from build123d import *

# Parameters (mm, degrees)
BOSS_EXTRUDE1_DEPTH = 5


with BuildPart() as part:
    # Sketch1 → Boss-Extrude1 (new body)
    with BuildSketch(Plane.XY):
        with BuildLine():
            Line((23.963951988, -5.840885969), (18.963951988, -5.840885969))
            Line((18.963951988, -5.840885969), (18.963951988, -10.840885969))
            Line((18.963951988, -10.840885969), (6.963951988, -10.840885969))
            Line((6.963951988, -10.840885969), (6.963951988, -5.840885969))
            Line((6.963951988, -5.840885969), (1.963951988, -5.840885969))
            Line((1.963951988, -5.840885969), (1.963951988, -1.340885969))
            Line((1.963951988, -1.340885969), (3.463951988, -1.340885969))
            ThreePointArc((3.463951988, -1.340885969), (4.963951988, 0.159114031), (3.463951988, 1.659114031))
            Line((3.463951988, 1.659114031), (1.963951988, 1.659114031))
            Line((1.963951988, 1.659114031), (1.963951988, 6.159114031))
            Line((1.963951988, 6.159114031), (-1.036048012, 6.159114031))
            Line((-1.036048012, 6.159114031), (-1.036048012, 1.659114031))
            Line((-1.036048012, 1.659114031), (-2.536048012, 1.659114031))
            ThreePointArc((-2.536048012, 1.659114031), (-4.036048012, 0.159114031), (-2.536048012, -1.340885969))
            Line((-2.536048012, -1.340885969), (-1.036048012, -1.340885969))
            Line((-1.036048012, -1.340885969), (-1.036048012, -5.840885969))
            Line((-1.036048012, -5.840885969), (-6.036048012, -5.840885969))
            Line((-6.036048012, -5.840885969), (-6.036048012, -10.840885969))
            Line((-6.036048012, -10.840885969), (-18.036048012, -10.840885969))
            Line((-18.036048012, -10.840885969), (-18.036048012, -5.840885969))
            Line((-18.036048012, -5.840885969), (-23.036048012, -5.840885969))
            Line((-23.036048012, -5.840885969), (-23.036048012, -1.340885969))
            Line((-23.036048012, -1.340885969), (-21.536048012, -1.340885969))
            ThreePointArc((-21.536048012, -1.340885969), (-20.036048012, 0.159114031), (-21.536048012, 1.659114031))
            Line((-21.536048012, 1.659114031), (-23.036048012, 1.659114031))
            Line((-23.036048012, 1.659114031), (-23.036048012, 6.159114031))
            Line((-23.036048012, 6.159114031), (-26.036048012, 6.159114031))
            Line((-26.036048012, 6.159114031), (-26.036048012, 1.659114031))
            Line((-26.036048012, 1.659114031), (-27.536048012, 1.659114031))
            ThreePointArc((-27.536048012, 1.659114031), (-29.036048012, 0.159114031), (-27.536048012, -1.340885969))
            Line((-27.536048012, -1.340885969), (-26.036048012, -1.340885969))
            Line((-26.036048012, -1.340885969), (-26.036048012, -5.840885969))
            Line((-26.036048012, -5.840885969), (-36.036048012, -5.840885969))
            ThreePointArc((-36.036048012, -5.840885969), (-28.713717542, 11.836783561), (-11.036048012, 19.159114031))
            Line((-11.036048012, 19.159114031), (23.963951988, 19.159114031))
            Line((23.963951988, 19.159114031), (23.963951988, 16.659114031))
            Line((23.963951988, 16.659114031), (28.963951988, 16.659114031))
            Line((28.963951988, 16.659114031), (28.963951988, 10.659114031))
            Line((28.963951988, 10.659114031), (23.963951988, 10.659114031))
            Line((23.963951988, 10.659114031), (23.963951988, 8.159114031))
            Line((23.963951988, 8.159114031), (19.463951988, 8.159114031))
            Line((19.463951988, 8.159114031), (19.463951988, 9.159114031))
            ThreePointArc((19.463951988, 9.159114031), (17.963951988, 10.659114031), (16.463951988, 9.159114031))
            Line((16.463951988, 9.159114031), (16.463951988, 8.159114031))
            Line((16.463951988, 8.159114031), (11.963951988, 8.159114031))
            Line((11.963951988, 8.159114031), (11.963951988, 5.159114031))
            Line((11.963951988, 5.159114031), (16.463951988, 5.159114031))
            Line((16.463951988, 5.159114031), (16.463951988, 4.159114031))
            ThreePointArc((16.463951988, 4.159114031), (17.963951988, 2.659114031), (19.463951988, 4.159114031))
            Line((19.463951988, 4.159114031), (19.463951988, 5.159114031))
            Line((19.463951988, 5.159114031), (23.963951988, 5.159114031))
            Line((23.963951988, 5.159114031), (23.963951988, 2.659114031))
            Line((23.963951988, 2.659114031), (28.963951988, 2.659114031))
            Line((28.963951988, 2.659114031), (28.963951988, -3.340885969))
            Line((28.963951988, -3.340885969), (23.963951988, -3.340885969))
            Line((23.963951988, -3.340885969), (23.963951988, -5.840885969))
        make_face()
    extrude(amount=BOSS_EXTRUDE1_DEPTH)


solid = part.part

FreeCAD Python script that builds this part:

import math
import FreeCAD as App
import Part
import Sketcher

doc = App.newDocument("Part")
body = doc.addObject("PartDesign::Body", "Body")

# Sketch on XY plane
sketch1 = body.newObject("Sketcher::SketchObject", "Sketch")
sketch1.AttachmentSupport = (doc.getObject("XY_Plane"), [""])
sketch1.MapMode = "FlatFace"
sketch1.addGeometry([
    Part.LineSegment(App.Vector(19, -5.8, 0), App.Vector(24, -5.8, 0)),  # 0
    Part.LineSegment(App.Vector(24, -5.8, 0), App.Vector(24, -3.3, 0)),  # 1
    Part.LineSegment(App.Vector(24, -3.3, 0), App.Vector(29, -3.3, 0)),  # 2
    Part.LineSegment(App.Vector(29, -3.3, 0), App.Vector(29, 2.7, 0)),  # 3
    Part.LineSegment(App.Vector(29, 2.7, 0), App.Vector(24, 2.7, 0)),  # 4
    Part.LineSegment(App.Vector(24, 2.7, 0), App.Vector(24, 5.2, 0)),  # 5
    Part.LineSegment(App.Vector(24, 5.2, 0), App.Vector(19.5, 5.2, 0)),  # 6
    Part.LineSegment(App.Vector(19.5, 5.2, 0), App.Vector(19.5, 4.2, 0)),  # 7
    Part.ArcOfCircle(Part.Circle(App.Vector(18, 4.2, 0), App.Vector(0, 0, 1), 1.5), math.radians(180), math.radians(360)),  # 8
    Part.LineSegment(App.Vector(16.5, 4.2, 0), App.Vector(16.5, 5.2, 0)),  # 9
    Part.LineSegment(App.Vector(16.5, 5.2, 0), App.Vector(12, 5.2, 0)),  # 10
    Part.LineSegment(App.Vector(12, 5.2, 0), App.Vector(12, 8.2, 0)),  # 11
    Part.LineSegment(App.Vector(12, 8.2, 0), App.Vector(16.5, 8.2, 0)),  # 12
    Part.LineSegment(App.Vector(16.5, 8.2, 0), App.Vector(16.5, 9.2, 0)),  # 13
    Part.ArcOfCircle(Part.Circle(App.Vector(18, 9.2, 0), App.Vector(0, 0, 1), 1.5), math.radians(0), math.radians(180)),  # 14
    Part.LineSegment(App.Vector(19.5, 9.2, 0), App.Vector(19.5, 8.2, 0)),  # 15
    Part.LineSegment(App.Vector(19.5, 8.2, 0), App.Vector(24, 8.2, 0)),  # 16
    Part.LineSegment(App.Vector(24, 8.2, 0), App.Vector(24, 10.7, 0)),  # 17
    Part.LineSegment(App.Vector(24, 10.7, 0), App.Vector(29, 10.7, 0)),  # 18
    Part.LineSegment(App.Vector(29, 10.7, 0), App.Vector(29, 16.7, 0)),  # 19
    Part.LineSegment(App.Vector(29, 16.7, 0), App.Vector(24, 16.7, 0)),  # 20
    Part.LineSegment(App.Vector(24, 16.7, 0), App.Vector(24, 19.2, 0)),  # 21
    Part.LineSegment(App.Vector(24, 19.2, 0), App.Vector(-11, 19.2, 0)),  # 22
    Part.ArcOfCircle(Part.Circle(App.Vector(-11, -5.8, 0), App.Vector(0, 0, 1), 25), math.radians(90), math.radians(180)),  # 23
    Part.LineSegment(App.Vector(-36, -5.8, 0), App.Vector(-26, -5.8, 0)),  # 24
    Part.LineSegment(App.Vector(-26, -5.8, 0), App.Vector(-26, -1.3, 0)),  # 25
    Part.LineSegment(App.Vector(-26, -1.3, 0), App.Vector(-27.5, -1.3, 0)),  # 26
    Part.ArcOfCircle(Part.Circle(App.Vector(-27.5, 0.2, 0), App.Vector(0, 0, 1), 1.5), math.radians(90), math.radians(270)),  # 27
    Part.LineSegment(App.Vector(-27.5, 1.7, 0), App.Vector(-26, 1.7, 0)),  # 28
    Part.LineSegment(App.Vector(-26, 1.7, 0), App.Vector(-26, 6.2, 0)),  # 29
    Part.LineSegment(App.Vector(-26, 6.2, 0), App.Vector(-23, 6.2, 0)),  # 30
    Part.LineSegment(App.Vector(-23, 6.2, 0), App.Vector(-23, 1.7, 0)),  # 31
    Part.LineSegment(App.Vector(-23, 1.7, 0), App.Vector(-21.5, 1.7, 0)),  # 32
    Part.ArcOfCircle(Part.Circle(App.Vector(-21.5, 0.2, 0), App.Vector(0, 0, 1), 1.5), math.radians(-90), math.radians(90)),  # 33
    Part.LineSegment(App.Vector(-21.5, -1.3, 0), App.Vector(-23, -1.3, 0)),  # 34
    Part.LineSegment(App.Vector(-23, -1.3, 0), App.Vector(-23, -5.8, 0)),  # 35
    Part.LineSegment(App.Vector(-23, -5.8, 0), App.Vector(-18, -5.8, 0)),  # 36
    Part.LineSegment(App.Vector(-18, -5.8, 0), App.Vector(-18, -10.8, 0)),  # 37
    Part.LineSegment(App.Vector(-18, -10.8, 0), App.Vector(-6, -10.8, 0)),  # 38
    Part.LineSegment(App.Vector(-6, -10.8, 0), App.Vector(-6, -5.8, 0)),  # 39
    Part.LineSegment(App.Vector(-6, -5.8, 0), App.Vector(-1, -5.8, 0)),  # 40
    Part.LineSegment(App.Vector(-1, -5.8, 0), App.Vector(-1, -1.3, 0)),  # 41
    Part.LineSegment(App.Vector(-1, -1.3, 0), App.Vector(-2.5, -1.3, 0)),  # 42
    Part.ArcOfCircle(Part.Circle(App.Vector(-2.5, 0.2, 0), App.Vector(0, 0, 1), 1.5), math.radians(90), math.radians(270)),  # 43
    Part.LineSegment(App.Vector(-2.5, 1.7, 0), App.Vector(-1, 1.7, 0)),  # 44
    Part.LineSegment(App.Vector(-1, 1.7, 0), App.Vector(-1, 6.2, 0)),  # 45
    Part.LineSegment(App.Vector(-1, 6.2, 0), App.Vector(2, 6.2, 0)),  # 46
    Part.LineSegment(App.Vector(2, 6.2, 0), App.Vector(2, 1.7, 0)),  # 47
    Part.LineSegment(App.Vector(2, 1.7, 0), App.Vector(3.5, 1.7, 0)),  # 48
    Part.ArcOfCircle(Part.Circle(App.Vector(3.5, 0.2, 0), App.Vector(0, 0, 1), 1.5), math.radians(-90), math.radians(90)),  # 49
    Part.LineSegment(App.Vector(3.5, -1.3, 0), App.Vector(2, -1.3, 0)),  # 50
    Part.LineSegment(App.Vector(2, -1.3, 0), App.Vector(2, -5.8, 0)),  # 51
    Part.LineSegment(App.Vector(2, -5.8, 0), App.Vector(7, -5.8, 0)),  # 52
    Part.LineSegment(App.Vector(7, -5.8, 0), App.Vector(7, -10.8, 0)),  # 53
    Part.LineSegment(App.Vector(7, -10.8, 0), App.Vector(19, -10.8, 0)),  # 54
    Part.LineSegment(App.Vector(19, -10.8, 0), App.Vector(19, -5.8, 0)),  # 55
], False)
sketch1.addConstraint([
    Sketcher.Constraint("Coincident", 0, 2, 1, 1),
    Sketcher.Constraint("Coincident", 1, 2, 2, 1),
    Sketcher.Constraint("Coincident", 2, 2, 3, 1),
    Sketcher.Constraint("Coincident", 3, 2, 4, 1),
    Sketcher.Constraint("Coincident", 4, 2, 5, 1),
    Sketcher.Constraint("Coincident", 5, 2, 6, 1),
    Sketcher.Constraint("Coincident", 6, 2, 7, 1),
    Sketcher.Constraint("Tangent", 7, 2, 8, 2),
    Sketcher.Constraint("Tangent", 8, 1, 9, 1),
    Sketcher.Constraint("Coincident", 9, 2, 10, 1),
    Sketcher.Constraint("Coincident", 10, 2, 11, 1),
    Sketcher.Constraint("Coincident", 11, 2, 12, 1),
    Sketcher.Constraint("Coincident", 12, 2, 13, 1),
    Sketcher.Constraint("Tangent", 13, 2, 14, 2),
    Sketcher.Constraint("Tangent", 14, 1, 15, 1),
    Sketcher.Constraint("Coincident", 15, 2, 16, 1),
    Sketcher.Constraint("Coincident", 16, 2, 17, 1),
    Sketcher.Constraint("Coincident", 17, 2, 18, 1),
    Sketcher.Constraint("Coincident", 18, 2, 19, 1),
    Sketcher.Constraint("Coincident", 19, 2, 20, 1),
    Sketcher.Constraint("Coincident", 20, 2, 21, 1),
    Sketcher.Constraint("Coincident", 21, 2, 22, 1),
    Sketcher.Constraint("Tangent", 22, 2, 23, 1),
    Sketcher.Constraint("Coincident", 23, 2, 24, 1),
    Sketcher.Constraint("Coincident", 24, 2, 25, 1),
    Sketcher.Constraint("Coincident", 25, 2, 26, 1),
    Sketcher.Constraint("Tangent", 26, 2, 27, 2),
    Sketcher.Constraint("Tangent", 27, 1, 28, 1),
    Sketcher.Constraint("Coincident", 28, 2, 29, 1),
    Sketcher.Constraint("Coincident", 29, 2, 30, 1),
    Sketcher.Constraint("Coincident", 30, 2, 31, 1),
    Sketcher.Constraint("Coincident", 31, 2, 32, 1),
    Sketcher.Constraint("Tangent", 32, 2, 33, 2),
    Sketcher.Constraint("Tangent", 33, 1, 34, 1),
    Sketcher.Constraint("Coincident", 34, 2, 35, 1),
    Sketcher.Constraint("Coincident", 35, 2, 36, 1),
    Sketcher.Constraint("Coincident", 36, 2, 37, 1),
    Sketcher.Constraint("Coincident", 37, 2, 38, 1),
    Sketcher.Constraint("Coincident", 38, 2, 39, 1),
    Sketcher.Constraint("Coincident", 39, 2, 40, 1),
    Sketcher.Constraint("Coincident", 40, 2, 41, 1),
    Sketcher.Constraint("Coincident", 41, 2, 42, 1),
    Sketcher.Constraint("Tangent", 42, 2, 43, 2),
    Sketcher.Constraint("Tangent", 43, 1, 44, 1),
    Sketcher.Constraint("Coincident", 44, 2, 45, 1),
    Sketcher.Constraint("Coincident", 45, 2, 46, 1),
    Sketcher.Constraint("Coincident", 46, 2, 47, 1),
    Sketcher.Constraint("Coincident", 47, 2, 48, 1),
    Sketcher.Constraint("Tangent", 48, 2, 49, 2),
    Sketcher.Constraint("Tangent", 49, 1, 50, 1),
    Sketcher.Constraint("Coincident", 50, 2, 51, 1),
    Sketcher.Constraint("Coincident", 51, 2, 52, 1),
    Sketcher.Constraint("Coincident", 52, 2, 53, 1),
    Sketcher.Constraint("Coincident", 53, 2, 54, 1),
    Sketcher.Constraint("Coincident", 54, 2, 55, 1),
    Sketcher.Constraint("Coincident", 55, 2, 0, 1),
    Sketcher.Constraint("Horizontal", 0),
    Sketcher.Constraint("Vertical", 1),
    Sketcher.Constraint("Horizontal", 2),
    Sketcher.Constraint("Vertical", 3),
    Sketcher.Constraint("Horizontal", 4),
    Sketcher.Constraint("Vertical", 5),
    Sketcher.Constraint("Horizontal", 6),
    Sketcher.Constraint("Vertical", 7),
    Sketcher.Constraint("Vertical", 9),
    Sketcher.Constraint("Horizontal", 10),
    Sketcher.Constraint("Vertical", 11),
    Sketcher.Constraint("Horizontal", 12),
    Sketcher.Constraint("Vertical", 13),
    Sketcher.Constraint("Vertical", 15),
    Sketcher.Constraint("Horizontal", 16),
    Sketcher.Constraint("Vertical", 17),
    Sketcher.Constraint("Horizontal", 18),
    Sketcher.Constraint("Vertical", 19),
    Sketcher.Constraint("Horizontal", 20),
    Sketcher.Constraint("Vertical", 21),
    Sketcher.Constraint("Horizontal", 22),
    Sketcher.Constraint("Horizontal", 24),
    Sketcher.Constraint("Vertical", 25),
    Sketcher.Constraint("Horizontal", 26),
    Sketcher.Constraint("Horizontal", 28),
    Sketcher.Constraint("Vertical", 29),
    Sketcher.Constraint("Horizontal", 30),
    Sketcher.Constraint("Vertical", 31),
    Sketcher.Constraint("Horizontal", 32),
    Sketcher.Constraint("Horizontal", 34),
    Sketcher.Constraint("Vertical", 35),
    Sketcher.Constraint("Horizontal", 36),
    Sketcher.Constraint("Vertical", 37),
    Sketcher.Constraint("Horizontal", 38),
    Sketcher.Constraint("Vertical", 39),
    Sketcher.Constraint("Horizontal", 40),
    Sketcher.Constraint("Vertical", 41),
    Sketcher.Constraint("Horizontal", 42),
    Sketcher.Constraint("Horizontal", 44),
    Sketcher.Constraint("Vertical", 45),
    Sketcher.Constraint("Horizontal", 46),
    Sketcher.Constraint("Vertical", 47),
    Sketcher.Constraint("Horizontal", 48),
    Sketcher.Constraint("Horizontal", 50),
    Sketcher.Constraint("Vertical", 51),
    Sketcher.Constraint("Horizontal", 52),
    Sketcher.Constraint("Vertical", 53),
    Sketcher.Constraint("Horizontal", 54),
    Sketcher.Constraint("Vertical", 55),
    Sketcher.Constraint("Equal", 8, 14),
    Sketcher.Constraint("Equal", 14, 27),
    Sketcher.Constraint("Equal", 27, 33),
    Sketcher.Constraint("Equal", 33, 43),
    Sketcher.Constraint("Equal", 43, 49),
    Sketcher.Constraint("Horizontal", 27, 3, 33, 3),
    Sketcher.Constraint("Horizontal", 33, 3, 43, 3),
    Sketcher.Constraint("Horizontal", 43, 3, 49, 3),
    Sketcher.Constraint("Horizontal", 23, 3, 0, 2),
    Sketcher.Constraint("Horizontal", 6, 2, 9, 2),
    Sketcher.Constraint("Horizontal", 12, 2, 15, 2),
    Sketcher.Constraint("Horizontal", 0, 2, 23, 2),
    Sketcher.Constraint("Horizontal", 24, 2, 35, 2),
    Sketcher.Constraint("Horizontal", 36, 2, 39, 2),
    Sketcher.Constraint("Horizontal", 30, 2, 45, 2),
    Sketcher.Constraint("Horizontal", 40, 2, 51, 2),
    Sketcher.Constraint("Horizontal", 38, 2, 53, 2),
    Sketcher.Constraint("Vertical", 8, 3, 14, 3),
    Sketcher.Constraint("Vertical", 1, 2, 4, 2),
    Sketcher.Constraint("Vertical", 5, 2, 16, 2),
    Sketcher.Constraint("Vertical", 3, 2, 18, 2),
    Sketcher.Constraint("Vertical", 17, 2, 20, 2),
    Sketcher.Constraint("Vertical", 25, 2, 28, 2),
    Sketcher.Constraint("Vertical", 31, 2, 34, 2),
    Sketcher.Constraint("Vertical", 41, 2, 44, 2),
    Sketcher.Constraint("Vertical", 47, 2, 50, 2),
    Sketcher.Constraint("Equal", 0, 2),
    Sketcher.Constraint("Equal", 6, 10),
    Sketcher.Constraint("Equal", 28, 32),
    Sketcher.Constraint("Equal", 20, 36),
    Sketcher.Constraint("Equal", 36, 40),
    Sketcher.Constraint("Equal", 34, 42),
    Sketcher.Constraint("Equal", 30, 46),
    Sketcher.Constraint("Equal", 44, 48),
    Sketcher.Constraint("Equal", 40, 52),
    Sketcher.Constraint("Equal", 38, 54),
    Sketcher.Constraint("Equal", 1, 5),
    Sketcher.Constraint("Equal", 46, 11),
    Sketcher.Constraint("Equal", 9, 13),
    Sketcher.Constraint("Equal", 5, 17),
    Sketcher.Constraint("Equal", 3, 19),
    Sketcher.Constraint("Equal", 17, 21),
    Sketcher.Constraint("Equal", 16, 25),
    Sketcher.Constraint("Equal", 25, 29),
    Sketcher.Constraint("Equal", 52, 37),
    Sketcher.Constraint("Radius", 23, 25.0),
    Sketcher.Constraint("Radius", 8, 1.5),
    Sketcher.Constraint("DistanceX", 0, 1, 0, 2, 5.0),
    Sketcher.Constraint("DistanceX", 22, 2, 22, 1, 35.0),
    Sketcher.Constraint("DistanceX", 24, 1, 24, 2, 10.0),
    Sketcher.Constraint("DistanceX", 30, 1, 30, 2, 3.0),
    Sketcher.Constraint("DistanceY", 3, 1, 3, 2, 6.0),
    Sketcher.Constraint("DistanceY", 7, 2, 7, 1, 1.0),
    Sketcher.Constraint("DistanceX", 6, 2, 6, 1, 4.5),
    Sketcher.Constraint("DistanceX", 26, 2, 26, 1, 1.5),
    Sketcher.Constraint("DistanceX", -1, 1, 8, 3, 17.963952),
    Sketcher.Constraint("DistanceY", -1, 1, 8, 3, 4.159114),
])
pad1 = body.newObject("PartDesign::Pad", "Pad")
pad1.Profile = sketch1
pad1.Length = 5

doc.recompute()
